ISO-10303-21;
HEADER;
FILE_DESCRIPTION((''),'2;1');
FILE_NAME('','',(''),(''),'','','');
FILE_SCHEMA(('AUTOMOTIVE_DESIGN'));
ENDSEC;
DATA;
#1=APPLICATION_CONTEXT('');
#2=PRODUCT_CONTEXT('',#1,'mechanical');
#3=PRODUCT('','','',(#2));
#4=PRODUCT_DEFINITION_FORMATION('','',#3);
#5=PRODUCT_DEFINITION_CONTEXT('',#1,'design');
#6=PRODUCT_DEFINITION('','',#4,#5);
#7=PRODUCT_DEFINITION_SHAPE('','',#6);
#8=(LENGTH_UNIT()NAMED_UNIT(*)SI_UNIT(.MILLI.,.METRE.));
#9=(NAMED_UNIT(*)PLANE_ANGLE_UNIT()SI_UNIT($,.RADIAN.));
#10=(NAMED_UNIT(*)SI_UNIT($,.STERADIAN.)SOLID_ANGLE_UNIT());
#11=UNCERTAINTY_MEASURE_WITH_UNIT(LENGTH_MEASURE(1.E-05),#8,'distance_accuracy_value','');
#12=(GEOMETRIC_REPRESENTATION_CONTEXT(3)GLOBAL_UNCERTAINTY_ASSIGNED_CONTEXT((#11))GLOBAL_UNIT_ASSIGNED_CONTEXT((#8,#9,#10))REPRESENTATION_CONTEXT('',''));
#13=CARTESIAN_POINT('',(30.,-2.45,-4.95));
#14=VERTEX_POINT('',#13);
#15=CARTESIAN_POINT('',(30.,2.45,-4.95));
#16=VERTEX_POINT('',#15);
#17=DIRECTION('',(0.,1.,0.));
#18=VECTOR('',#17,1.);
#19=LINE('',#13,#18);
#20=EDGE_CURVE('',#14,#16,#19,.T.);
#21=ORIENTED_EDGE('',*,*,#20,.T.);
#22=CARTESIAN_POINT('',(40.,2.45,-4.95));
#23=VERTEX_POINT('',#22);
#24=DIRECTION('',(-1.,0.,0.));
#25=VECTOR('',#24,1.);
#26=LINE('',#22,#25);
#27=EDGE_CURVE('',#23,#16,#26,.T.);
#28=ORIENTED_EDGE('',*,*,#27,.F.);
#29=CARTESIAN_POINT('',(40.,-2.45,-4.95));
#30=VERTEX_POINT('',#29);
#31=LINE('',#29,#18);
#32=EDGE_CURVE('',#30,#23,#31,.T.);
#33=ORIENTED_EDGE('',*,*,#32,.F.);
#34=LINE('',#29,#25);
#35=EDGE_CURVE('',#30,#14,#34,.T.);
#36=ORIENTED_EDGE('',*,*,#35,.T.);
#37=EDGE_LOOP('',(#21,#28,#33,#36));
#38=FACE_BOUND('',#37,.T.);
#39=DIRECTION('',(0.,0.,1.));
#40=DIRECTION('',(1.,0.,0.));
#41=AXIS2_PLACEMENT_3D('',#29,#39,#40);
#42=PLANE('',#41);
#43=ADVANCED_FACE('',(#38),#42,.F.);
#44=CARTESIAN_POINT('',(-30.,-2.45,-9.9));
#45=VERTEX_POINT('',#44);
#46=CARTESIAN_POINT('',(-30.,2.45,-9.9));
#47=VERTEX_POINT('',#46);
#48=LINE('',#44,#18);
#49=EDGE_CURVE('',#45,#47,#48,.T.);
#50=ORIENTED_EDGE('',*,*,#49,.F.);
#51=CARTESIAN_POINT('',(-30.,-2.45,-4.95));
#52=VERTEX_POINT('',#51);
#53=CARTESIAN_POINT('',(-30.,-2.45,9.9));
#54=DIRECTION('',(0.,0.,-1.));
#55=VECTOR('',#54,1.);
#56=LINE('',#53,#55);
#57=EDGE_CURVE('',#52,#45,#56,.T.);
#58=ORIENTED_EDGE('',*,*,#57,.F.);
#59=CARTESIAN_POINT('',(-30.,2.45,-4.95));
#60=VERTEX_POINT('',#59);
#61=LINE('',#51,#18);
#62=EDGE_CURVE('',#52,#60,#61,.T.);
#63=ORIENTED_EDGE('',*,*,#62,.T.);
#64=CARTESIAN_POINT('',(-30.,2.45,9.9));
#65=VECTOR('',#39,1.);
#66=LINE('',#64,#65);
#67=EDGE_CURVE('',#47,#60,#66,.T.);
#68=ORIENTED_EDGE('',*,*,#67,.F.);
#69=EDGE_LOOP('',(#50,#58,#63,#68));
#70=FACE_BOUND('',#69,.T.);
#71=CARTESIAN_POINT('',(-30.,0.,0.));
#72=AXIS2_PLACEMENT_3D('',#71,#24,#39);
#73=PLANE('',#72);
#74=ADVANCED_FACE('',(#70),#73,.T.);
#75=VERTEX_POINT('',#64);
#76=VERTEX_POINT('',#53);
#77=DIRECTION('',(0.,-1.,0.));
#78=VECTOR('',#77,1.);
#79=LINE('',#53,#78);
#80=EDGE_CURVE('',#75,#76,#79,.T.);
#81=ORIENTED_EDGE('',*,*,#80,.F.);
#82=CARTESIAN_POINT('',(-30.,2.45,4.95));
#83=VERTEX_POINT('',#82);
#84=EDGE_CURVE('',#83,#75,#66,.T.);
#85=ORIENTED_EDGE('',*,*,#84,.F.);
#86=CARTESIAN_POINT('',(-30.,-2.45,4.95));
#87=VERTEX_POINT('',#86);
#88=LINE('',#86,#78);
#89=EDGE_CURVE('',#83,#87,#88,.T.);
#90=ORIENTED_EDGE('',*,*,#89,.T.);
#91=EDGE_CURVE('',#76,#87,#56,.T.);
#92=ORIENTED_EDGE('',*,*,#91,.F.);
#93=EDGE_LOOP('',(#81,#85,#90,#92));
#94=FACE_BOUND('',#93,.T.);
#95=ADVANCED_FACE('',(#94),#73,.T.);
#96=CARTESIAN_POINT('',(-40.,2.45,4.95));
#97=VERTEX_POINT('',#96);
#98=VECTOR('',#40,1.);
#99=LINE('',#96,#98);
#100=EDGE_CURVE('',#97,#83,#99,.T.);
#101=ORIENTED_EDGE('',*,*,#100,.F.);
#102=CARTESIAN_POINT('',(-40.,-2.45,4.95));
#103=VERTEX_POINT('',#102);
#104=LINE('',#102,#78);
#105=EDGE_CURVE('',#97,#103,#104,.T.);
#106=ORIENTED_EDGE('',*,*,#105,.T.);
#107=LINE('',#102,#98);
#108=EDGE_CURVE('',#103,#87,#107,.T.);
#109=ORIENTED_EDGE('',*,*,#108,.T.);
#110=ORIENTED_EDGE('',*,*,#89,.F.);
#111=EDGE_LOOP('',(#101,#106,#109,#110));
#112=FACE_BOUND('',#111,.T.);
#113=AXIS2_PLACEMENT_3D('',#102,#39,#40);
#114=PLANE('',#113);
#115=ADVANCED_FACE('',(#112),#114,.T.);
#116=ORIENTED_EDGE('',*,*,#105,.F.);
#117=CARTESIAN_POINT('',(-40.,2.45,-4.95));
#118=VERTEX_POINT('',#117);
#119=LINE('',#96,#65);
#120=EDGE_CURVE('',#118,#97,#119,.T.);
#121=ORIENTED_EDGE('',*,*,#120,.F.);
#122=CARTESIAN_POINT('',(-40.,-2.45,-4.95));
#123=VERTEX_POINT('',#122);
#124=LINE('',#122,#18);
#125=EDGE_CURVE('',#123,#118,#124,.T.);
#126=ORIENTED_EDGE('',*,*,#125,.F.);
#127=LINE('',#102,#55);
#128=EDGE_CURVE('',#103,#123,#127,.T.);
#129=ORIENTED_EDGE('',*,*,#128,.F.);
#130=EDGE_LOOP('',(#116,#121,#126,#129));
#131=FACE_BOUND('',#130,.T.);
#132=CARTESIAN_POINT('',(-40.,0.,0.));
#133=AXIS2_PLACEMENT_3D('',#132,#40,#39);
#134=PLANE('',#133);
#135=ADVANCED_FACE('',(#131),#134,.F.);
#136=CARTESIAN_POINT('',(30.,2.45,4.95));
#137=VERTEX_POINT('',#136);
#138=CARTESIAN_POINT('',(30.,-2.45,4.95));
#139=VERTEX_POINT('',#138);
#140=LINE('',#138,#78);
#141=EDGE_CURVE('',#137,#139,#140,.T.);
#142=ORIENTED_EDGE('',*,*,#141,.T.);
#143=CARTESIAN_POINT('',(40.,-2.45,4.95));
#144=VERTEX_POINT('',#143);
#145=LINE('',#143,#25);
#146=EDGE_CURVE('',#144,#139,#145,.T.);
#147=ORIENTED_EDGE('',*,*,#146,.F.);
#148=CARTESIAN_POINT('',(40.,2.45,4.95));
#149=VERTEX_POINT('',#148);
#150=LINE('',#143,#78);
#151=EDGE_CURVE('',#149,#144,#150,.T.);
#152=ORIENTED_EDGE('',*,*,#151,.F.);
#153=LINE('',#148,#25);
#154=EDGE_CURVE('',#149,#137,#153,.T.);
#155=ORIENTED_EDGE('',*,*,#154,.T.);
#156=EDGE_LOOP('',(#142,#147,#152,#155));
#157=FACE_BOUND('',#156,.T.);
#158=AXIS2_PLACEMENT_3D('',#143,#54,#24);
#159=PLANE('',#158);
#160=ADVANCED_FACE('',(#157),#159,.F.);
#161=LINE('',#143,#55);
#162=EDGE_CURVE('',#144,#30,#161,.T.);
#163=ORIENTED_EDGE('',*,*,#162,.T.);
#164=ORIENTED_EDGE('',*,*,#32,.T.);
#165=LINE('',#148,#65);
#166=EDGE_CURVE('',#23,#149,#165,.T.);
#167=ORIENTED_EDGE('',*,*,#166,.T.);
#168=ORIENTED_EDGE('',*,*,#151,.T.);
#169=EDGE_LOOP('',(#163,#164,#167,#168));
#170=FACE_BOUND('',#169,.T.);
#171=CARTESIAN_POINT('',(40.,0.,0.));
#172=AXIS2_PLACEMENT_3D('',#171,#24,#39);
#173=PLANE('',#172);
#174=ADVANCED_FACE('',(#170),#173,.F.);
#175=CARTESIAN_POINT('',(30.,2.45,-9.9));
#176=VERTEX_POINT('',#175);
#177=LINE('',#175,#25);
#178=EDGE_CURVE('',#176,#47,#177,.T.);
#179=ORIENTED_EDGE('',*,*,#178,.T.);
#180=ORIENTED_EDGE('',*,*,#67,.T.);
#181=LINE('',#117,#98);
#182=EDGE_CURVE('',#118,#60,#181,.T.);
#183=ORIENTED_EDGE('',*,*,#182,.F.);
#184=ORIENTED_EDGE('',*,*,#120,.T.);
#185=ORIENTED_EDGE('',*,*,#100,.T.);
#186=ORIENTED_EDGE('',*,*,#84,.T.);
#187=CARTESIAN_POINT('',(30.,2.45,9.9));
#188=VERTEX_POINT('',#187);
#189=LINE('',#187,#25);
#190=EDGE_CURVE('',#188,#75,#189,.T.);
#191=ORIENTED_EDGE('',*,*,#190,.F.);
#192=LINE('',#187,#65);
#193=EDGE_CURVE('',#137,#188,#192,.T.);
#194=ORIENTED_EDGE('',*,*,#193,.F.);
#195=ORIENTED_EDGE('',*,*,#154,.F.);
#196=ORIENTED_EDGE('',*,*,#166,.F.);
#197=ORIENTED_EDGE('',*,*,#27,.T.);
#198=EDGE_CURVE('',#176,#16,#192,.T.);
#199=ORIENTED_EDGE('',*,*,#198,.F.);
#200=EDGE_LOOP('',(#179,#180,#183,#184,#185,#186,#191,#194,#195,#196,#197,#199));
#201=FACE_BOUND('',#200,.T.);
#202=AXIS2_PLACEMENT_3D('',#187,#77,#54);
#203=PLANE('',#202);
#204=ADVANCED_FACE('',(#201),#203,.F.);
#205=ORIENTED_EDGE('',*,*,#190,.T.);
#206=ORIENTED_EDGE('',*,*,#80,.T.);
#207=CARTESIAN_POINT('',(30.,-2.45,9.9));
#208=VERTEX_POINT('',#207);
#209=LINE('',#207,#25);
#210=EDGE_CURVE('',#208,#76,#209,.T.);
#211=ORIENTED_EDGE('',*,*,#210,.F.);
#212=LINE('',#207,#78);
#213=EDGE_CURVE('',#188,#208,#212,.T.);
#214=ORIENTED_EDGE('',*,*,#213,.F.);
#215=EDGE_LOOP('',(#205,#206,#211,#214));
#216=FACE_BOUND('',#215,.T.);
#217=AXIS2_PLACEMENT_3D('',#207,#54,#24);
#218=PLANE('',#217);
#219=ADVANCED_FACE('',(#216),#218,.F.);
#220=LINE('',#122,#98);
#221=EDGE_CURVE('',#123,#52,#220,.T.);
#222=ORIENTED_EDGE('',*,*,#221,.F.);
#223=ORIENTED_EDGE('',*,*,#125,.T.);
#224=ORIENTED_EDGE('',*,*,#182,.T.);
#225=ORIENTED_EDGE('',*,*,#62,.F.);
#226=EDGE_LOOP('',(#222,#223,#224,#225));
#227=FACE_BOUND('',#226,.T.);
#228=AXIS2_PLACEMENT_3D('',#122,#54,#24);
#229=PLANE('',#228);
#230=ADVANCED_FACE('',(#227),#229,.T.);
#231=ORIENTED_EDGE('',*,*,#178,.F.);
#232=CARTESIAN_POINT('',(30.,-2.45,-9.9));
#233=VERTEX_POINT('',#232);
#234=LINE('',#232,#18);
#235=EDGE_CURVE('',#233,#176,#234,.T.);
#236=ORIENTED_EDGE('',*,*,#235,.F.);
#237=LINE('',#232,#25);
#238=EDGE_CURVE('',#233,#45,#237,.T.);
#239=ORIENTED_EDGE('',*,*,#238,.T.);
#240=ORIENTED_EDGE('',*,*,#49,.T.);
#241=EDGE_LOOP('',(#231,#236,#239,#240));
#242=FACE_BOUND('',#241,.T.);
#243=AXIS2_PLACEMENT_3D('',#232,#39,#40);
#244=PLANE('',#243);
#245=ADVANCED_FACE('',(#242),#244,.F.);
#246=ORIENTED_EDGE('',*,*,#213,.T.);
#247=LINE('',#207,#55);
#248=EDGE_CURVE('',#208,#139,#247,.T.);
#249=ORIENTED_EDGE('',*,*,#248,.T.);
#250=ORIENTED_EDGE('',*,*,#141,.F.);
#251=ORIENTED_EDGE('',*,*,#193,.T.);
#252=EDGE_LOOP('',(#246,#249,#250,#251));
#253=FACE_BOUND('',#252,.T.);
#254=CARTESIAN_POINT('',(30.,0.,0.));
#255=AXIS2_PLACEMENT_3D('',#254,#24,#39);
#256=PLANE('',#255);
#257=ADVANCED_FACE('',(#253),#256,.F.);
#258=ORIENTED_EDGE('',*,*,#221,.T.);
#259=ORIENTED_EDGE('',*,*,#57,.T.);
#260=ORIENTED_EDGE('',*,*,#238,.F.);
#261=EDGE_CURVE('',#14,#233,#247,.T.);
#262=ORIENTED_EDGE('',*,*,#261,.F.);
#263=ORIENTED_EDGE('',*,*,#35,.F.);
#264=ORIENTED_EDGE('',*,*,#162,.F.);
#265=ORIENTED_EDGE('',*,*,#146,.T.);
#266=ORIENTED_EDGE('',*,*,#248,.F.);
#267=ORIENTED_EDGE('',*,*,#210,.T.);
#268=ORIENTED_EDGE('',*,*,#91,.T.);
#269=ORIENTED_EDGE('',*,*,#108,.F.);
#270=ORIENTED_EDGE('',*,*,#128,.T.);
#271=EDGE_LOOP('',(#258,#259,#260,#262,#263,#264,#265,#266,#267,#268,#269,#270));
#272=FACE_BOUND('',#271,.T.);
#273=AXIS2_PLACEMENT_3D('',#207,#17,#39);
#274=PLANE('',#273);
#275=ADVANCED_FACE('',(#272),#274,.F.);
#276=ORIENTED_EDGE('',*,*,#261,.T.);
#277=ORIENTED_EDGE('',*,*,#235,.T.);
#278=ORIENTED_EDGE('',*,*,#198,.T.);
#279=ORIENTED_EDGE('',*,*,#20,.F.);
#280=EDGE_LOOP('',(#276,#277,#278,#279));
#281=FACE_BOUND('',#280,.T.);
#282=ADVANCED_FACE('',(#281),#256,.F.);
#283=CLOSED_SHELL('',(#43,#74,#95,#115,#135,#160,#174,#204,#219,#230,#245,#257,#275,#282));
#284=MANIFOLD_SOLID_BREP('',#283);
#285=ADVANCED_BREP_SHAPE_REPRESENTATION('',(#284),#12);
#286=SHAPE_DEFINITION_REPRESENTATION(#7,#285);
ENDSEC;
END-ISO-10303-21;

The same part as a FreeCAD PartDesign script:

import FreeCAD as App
import Part
import Sketcher


def add_polygon(sketch, points):
    """Adds a closed chain of lines whose ends are joined by coincident constraints."""
    first, n = sketch.GeometryCount, len(points)
    for a, b in zip(points, points[1:] + points[:1]):
        sketch.addGeometry(Part.LineSegment(App.Vector(*a, 0), App.Vector(*b, 0)), False)
    for i in range(n):
        sketch.addConstraint(Sketcher.Constraint("Coincident", first + i, 2, first + (i + 1) % n, 1))

doc = App.newDocument("Part")
body = doc.addObject("PartDesign::Body", "Body")

# Sketch on YZ plane
sketch1 = body.newObject("Sketcher::SketchObject", "Sketch")
sketch1.AttachmentSupport = (doc.getObject("YZ_Plane"), [""])
sketch1.MapMode = "FlatFace"
add_polygon(sketch1, [(2.5, 9.9), (-2.5, 9.9), (-2.5, -9.9), (2.5, -9.9)])  # lines 0-3
sketch1.addConstraint([
    Sketcher.Constraint("Horizontal", 0),
    Sketcher.Constraint("Vertical", 1),
    Sketcher.Constraint("Horizontal", 2),
    Sketcher.Constraint("Vertical", 3),
    Sketcher.Constraint("Symmetric", 0, 2, 2, 2, -1, 1),
    Sketcher.Constraint("DistanceX", 0, 2, 0, 1, 4.9),
    Sketcher.Constraint("DistanceY", 1, 2, 1, 1, 19.8),
])
pad1 = body.newObject("PartDesign::Pad", "Pad")
pad1.Profile = sketch1
pad1.Length = 60
pad1.Midplane = True

# Sketch on YZ plane
sketch2 = body.newObject("Sketcher::SketchObject", "Sketch001")
sketch2.AttachmentSupport = (doc.getObject("YZ_Plane"), [""])
sketch2.MapMode = "FlatFace"
sketch2.AttachmentOffset = App.Placement(App.Vector(0, 0, 30), App.Rotation())
add_polygon(sketch2, [(2.5, 5), (-2.5, 5), (-2.5, -5), (2.5, -5)])  # lines 0-3
sketch2.addConstraint([
    Sketcher.Constraint("Horizontal", 0),
    Sketcher.Constraint("Vertical", 1),
    Sketcher.Constraint("Horizontal", 2),
    Sketcher.Constraint("Vertical", 3),
    Sketcher.Constraint("Symmetric", 0, 2, 2, 2, -1, 1),
    Sketcher.Constraint("DistanceX", 0, 2, 0, 1, 4.9),
    Sketcher.Constraint("DistanceY", 1, 2, 1, 1, 9.9),
])
pad2 = body.newObject("PartDesign::Pad", "Pad001")
pad2.Profile = sketch2
pad2.Length = 10
doc.recompute()

mirrored = body.newObject("PartDesign::Mirrored", "Mirrored")
mirrored.Originals = [pad2]
mirrored.MirrorPlane = (doc.getObject("YZ_Plane"), [""])
body.Tip = mirrored

doc.recompute()
